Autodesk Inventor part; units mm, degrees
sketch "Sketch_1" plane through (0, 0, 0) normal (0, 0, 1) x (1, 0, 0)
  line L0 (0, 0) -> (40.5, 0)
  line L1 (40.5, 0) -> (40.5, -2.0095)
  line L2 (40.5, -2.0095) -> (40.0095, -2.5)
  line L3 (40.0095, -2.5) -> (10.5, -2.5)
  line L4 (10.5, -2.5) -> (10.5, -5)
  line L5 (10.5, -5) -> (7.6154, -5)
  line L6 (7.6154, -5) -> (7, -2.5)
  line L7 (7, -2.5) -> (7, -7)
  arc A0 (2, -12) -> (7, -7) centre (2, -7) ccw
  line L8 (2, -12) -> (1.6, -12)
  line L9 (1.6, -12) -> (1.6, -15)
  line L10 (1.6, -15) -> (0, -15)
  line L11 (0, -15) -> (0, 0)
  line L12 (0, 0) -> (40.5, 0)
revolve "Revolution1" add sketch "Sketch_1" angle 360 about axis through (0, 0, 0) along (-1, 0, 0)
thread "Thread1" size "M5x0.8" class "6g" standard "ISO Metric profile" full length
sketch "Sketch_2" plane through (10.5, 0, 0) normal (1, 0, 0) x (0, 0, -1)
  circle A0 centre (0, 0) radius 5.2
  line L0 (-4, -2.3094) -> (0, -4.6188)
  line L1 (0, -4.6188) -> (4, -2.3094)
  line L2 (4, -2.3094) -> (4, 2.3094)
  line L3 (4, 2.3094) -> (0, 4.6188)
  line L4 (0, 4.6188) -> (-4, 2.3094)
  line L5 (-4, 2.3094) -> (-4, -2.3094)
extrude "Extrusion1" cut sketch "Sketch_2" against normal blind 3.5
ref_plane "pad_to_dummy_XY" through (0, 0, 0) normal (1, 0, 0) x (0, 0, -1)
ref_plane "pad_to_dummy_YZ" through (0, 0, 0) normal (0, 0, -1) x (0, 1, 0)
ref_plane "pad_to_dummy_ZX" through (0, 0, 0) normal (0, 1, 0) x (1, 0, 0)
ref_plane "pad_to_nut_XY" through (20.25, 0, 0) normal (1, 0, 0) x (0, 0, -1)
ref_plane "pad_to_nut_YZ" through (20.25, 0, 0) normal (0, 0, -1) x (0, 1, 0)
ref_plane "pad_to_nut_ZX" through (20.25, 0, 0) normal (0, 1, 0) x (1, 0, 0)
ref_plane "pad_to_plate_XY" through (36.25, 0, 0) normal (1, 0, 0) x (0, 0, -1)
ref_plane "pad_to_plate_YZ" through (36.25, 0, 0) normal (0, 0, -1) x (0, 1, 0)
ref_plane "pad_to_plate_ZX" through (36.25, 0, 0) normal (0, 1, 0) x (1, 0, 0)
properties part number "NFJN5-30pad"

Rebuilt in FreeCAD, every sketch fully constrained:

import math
import FreeCAD as App
import Part
import Sketcher
Q = App.Units.Quantity

doc = App.newDocument("Part")
body = doc.addObject("PartDesign::Body", "Body")

# Sketch on XY plane
sketch1 = body.newObject("Sketcher::SketchObject", "Sketch")
sketch1.AttachmentSupport = (doc.getObject("XY_Plane"), [""])
sketch1.MapMode = "FlatFace"
sketch1.addGeometry([
    Part.LineSegment(App.Vector(40.5, 0, 0), App.Vector(0, 0, 0)),  # 0
    Part.LineSegment(App.Vector(0, 0, 0), App.Vector(0, -15, 0)),  # 1
    Part.LineSegment(App.Vector(0, -15, 0), App.Vector(1.6, -15, 0)),  # 2
    Part.LineSegment(App.Vector(1.6, -15, 0), App.Vector(1.6, -12, 0)),  # 3
    Part.LineSegment(App.Vector(1.6, -12, 0), App.Vector(2, -12, 0)),  # 4
    Part.ArcOfCircle(Part.Circle(App.Vector(2, -7, 0), App.Vector(0, 0, 1), 5), math.radians(-90), math.radians(0)),  # 5
    Part.LineSegment(App.Vector(7, -7, 0), App.Vector(7, -2.5, 0)),  # 6
    Part.LineSegment(App.Vector(7, -2.5, 0), App.Vector(7.62, -5, 0)),  # 7
    Part.LineSegment(App.Vector(7.62, -5, 0), App.Vector(10.5, -5, 0)),  # 8
    Part.LineSegment(App.Vector(10.5, -5, 0), App.Vector(10.5, -2.5, 0)),  # 9
    Part.LineSegment(App.Vector(10.5, -2.5, 0), App.Vector(40.01, -2.5, 0)),  # 10
    Part.LineSegment(App.Vector(40.01, -2.5, 0), App.Vector(40.5, -2.01, 0)),  # 11
    Part.LineSegment(App.Vector(40.5, -2.01, 0), App.Vector(40.5, 0, 0)),  # 12
], False)
sketch1.addConstraint([
    Sketcher.Constraint("Coincident", 0, 2, 1, 1),
    Sketcher.Constraint("Coincident", 1, 2, 2, 1),
    Sketcher.Constraint("Coincident", 2, 2, 3, 1),
    Sketcher.Constraint("Coincident", 3, 2, 4, 1),
    Sketcher.Constraint("Tangent", 4, 2, 5, 1),
    Sketcher.Constraint("Tangent", 5, 2, 6, 1),
    Sketcher.Constraint("Coincident", 6, 2, 7, 1),
    Sketcher.Constraint("Coincident", 7, 2, 8, 1),
    Sketcher.Constraint("Coincident", 8, 2, 9, 1),
    Sketcher.Constraint("Coincident", 9, 2, 10, 1),
    Sketcher.Constraint("Coincident", 10, 2, 11, 1),
    Sketcher.Constraint("Coincident", 11, 2, 12, 1),
    Sketcher.Constraint("Coincident", 12, 2, 0, 1),
    Sketcher.Constraint("Horizontal", 0),
    Sketcher.Constraint("Vertical", 1),
    Sketcher.Constraint("Horizontal", 2),
    Sketcher.Constraint("Vertical", 3),
    Sketcher.Constraint("Horizontal", 4),
    Sketcher.Constraint("Vertical", 6),
    Sketcher.Constraint("Horizontal", 8),
    Sketcher.Constraint("Vertical", 9),
    Sketcher.Constraint("Horizontal", 10),
    Sketcher.Constraint("Vertical", 12),
    Sketcher.Constraint("Coincident", 0, 2, -1, 1),
    Sketcher.Constraint("Horizontal", 6, 2, 9, 2),
    Sketcher.Constraint("Radius", 5, 5.0),
    Sketcher.Constraint("DistanceY", 1, 2, 1, 1, 15.0),
    Sketcher.Constraint("DistanceY", 3, 1, 3, 2, 3.0),
    Sketcher.Constraint("Angle", 11, Q("45 deg")),
    Sketcher.Constraint("DistanceX", 0, 2, 0, 1, 40.5),
    Sketcher.Constraint("DistanceX", 2, 1, 2, 2, 1.6),
    Sketcher.Constraint("DistanceX", 4, 1, 4, 2, 0.4),
    Sketcher.Constraint("DistanceY", 6, 1, 6, 2, 4.5),
    Sketcher.Constraint("DistanceY", 9, 1, 9, 2, 2.5),
    Sketcher.Constraint("DistanceX", 9, 2, 11, 2, 30.0),
    Sketcher.Constraint("Angle", 7, Q("-76.171 deg")),
    Sketcher.Constraint("DistanceX", 10, 1, 10, 2, 29.5095),
])
revolution = body.newObject("PartDesign::Revolution", "Revolution")
revolution.Profile = sketch1
revolution.ReferenceAxis = (sketch1, ["H_Axis"])
revolution.Angle = 360

# Sketch on YZ plane
sketch2 = body.newObject("Sketcher::SketchObject", "Sketch001")
sketch2.AttachmentSupport = (doc.getObject("YZ_Plane"), [""])
sketch2.MapMode = "FlatFace"
sketch2.AttachmentOffset = App.Placement(App.Vector(0, 0, 10.5), App.Rotation())
sketch2.addGeometry([
    Part.Circle(App.Vector(0, 0, 0), App.Vector(0, 0, 1), 5.2),  # 0
    Part.LineSegment(App.Vector(-4.6, 0, 0), App.Vector(-2.3, 4, 0)),  # 1
    Part.LineSegment(App.Vector(-2.3, 4, 0), App.Vector(2.3, 4, 0)),  # 2
    Part.LineSegment(App.Vector(2.3, 4, 0), App.Vector(4.6, 0, 0)),  # 3
    Part.LineSegment(App.Vector(4.6, 0, 0), App.Vector(2.3, -4, 0)),  # 4
    Part.LineSegment(App.Vector(2.3, -4, 0), App.Vector(-2.3, -4, 0)),  # 5
    Part.LineSegment(App.Vector(-2.3, -4, 0), App.Vector(-4.6, 0, 0)),  # 6
], False)
sketch2.addConstraint([
    Sketcher.Constraint("Coincident", 1, 2, 2, 1),
    Sketcher.Constraint("Coincident", 2, 2, 3, 1),
    Sketcher.Constraint("Coincident", 3, 2, 4, 1),
    Sketcher.Constraint("Coincident", 4, 2, 5, 1),
    Sketcher.Constraint("Coincident", 5, 2, 6, 1),
    Sketcher.Constraint("Coincident", 6, 2, 1, 1),
    Sketcher.Constraint("Horizontal", 2),
    Sketcher.Constraint("Horizontal", 5),
    Sketcher.Constraint("Coincident", 0, 3, -1, 1),
    Sketcher.Constraint("Symmetric", 1, 2, 4, 2, -1, 1),
    Sketcher.Constraint("Symmetric", 3, 2, 6, 2, -1, 1),
    Sketcher.Constraint("PointOnObject", 3, 2, -1),
    Sketcher.Constraint("Parallel", 3, 6),
    Sketcher.Constraint("Vertical", 2, 2, 4, 2),
    Sketcher.Constraint("Diameter", 0, 10.4),
    Sketcher.Constraint("Angle", 1, Q("60 deg")),
    Sketcher.Constraint("DistanceY", -1, 1, 1, 2, 4.0),
    Sketcher.Constraint("DistanceX", 2, 1, 2, 2, 4.6188),
])
pocket1 = body.newObject("PartDesign::Pocket", "Pocket")
pocket1.Profile = sketch2
pocket1.Length = 3.5

doc.recompute()
